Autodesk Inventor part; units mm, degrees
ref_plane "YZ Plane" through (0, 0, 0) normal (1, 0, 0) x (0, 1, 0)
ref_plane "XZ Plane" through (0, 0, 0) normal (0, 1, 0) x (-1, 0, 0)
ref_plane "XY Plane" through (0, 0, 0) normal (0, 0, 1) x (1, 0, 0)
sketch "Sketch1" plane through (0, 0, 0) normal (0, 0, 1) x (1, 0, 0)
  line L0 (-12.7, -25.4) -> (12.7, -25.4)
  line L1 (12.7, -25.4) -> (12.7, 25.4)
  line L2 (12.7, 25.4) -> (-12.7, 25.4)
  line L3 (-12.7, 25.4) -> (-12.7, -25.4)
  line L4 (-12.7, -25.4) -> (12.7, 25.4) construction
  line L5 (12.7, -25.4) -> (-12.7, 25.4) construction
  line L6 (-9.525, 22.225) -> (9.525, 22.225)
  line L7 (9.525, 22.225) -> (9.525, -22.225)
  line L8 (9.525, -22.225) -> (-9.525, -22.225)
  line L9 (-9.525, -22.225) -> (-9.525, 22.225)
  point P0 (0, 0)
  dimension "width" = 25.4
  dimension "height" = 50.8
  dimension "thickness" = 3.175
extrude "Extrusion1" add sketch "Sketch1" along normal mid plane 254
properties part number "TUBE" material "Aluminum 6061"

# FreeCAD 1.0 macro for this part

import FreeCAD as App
import Part
import Sketcher

V = App.Vector
Q = App.Units.Quantity


def add_polygon(sketch, points):
    """Adds a closed chain of lines whose ends are joined by coincident constraints."""
    first, n = sketch.GeometryCount, len(points)
    for a, b in zip(points, points[1:] + points[:1]):
        sketch.addGeometry(Part.LineSegment(App.Vector(*a, 0), App.Vector(*b, 0)), False)
    for i in range(n):
        sketch.addConstraint(Sketcher.Constraint("Coincident", first + i, 2, first + (i + 1) % n, 1))

doc = App.newDocument("Part")
body = doc.addObject("PartDesign::Body", "Body")

sketch1 = body.newObject("Sketcher::SketchObject", "Sketch")
sketch1.AttachmentSupport = (doc.getObject("XY_Plane"), [""])
sketch1.MapMode = "FlatFace"
add_polygon(sketch1, [(-13, 25), (-13, -25), (13, -25), (13, 25)])
add_polygon(sketch1, [(-10, -22), (-10, 22), (10, 22), (10, -22)])
sketch1.addConstraint(Sketcher.Constraint("Vertical", 0))
sketch1.addConstraint(Sketcher.Constraint("Horizontal", 1))
sketch1.addConstraint(Sketcher.Constraint("Vertical", 2))
sketch1.addConstraint(Sketcher.Constraint("Horizontal", 3))
sketch1.addConstraint(Sketcher.Constraint("Vertical", 4))
sketch1.addConstraint(Sketcher.Constraint("Horizontal", 5))
sketch1.addConstraint(Sketcher.Constraint("Vertical", 6))
sketch1.addConstraint(Sketcher.Constraint("Horizontal", 7))
sketch1.addConstraint(Sketcher.Constraint("Symmetric", 0, 2, 2, 2, -1, 1))
sketch1.addConstraint(Sketcher.Constraint("Symmetric", 4, 2, 6, 2, -1, 1))
sketch1.addConstraint(Sketcher.Constraint("DistanceX", 1, 1, 1, 2, Q("1 in")))
sketch1.addConstraint(Sketcher.Constraint("DistanceY", 0, 2, 0, 1, Q("2 in")))
sketch1.addConstraint(Sketcher.Constraint("DistanceX", 3, 2, 4, 2, Q("0.125 in")))
sketch1.addConstraint(Sketcher.Constraint("DistanceY", 4, 2, 3, 2, Q("0.125 in")))
pad1 = body.newObject("PartDesign::Pad", "Pad")
pad1.Profile = sketch1
pad1.Length = Q("10 in")
pad1.Midplane = True

doc.recompute()
